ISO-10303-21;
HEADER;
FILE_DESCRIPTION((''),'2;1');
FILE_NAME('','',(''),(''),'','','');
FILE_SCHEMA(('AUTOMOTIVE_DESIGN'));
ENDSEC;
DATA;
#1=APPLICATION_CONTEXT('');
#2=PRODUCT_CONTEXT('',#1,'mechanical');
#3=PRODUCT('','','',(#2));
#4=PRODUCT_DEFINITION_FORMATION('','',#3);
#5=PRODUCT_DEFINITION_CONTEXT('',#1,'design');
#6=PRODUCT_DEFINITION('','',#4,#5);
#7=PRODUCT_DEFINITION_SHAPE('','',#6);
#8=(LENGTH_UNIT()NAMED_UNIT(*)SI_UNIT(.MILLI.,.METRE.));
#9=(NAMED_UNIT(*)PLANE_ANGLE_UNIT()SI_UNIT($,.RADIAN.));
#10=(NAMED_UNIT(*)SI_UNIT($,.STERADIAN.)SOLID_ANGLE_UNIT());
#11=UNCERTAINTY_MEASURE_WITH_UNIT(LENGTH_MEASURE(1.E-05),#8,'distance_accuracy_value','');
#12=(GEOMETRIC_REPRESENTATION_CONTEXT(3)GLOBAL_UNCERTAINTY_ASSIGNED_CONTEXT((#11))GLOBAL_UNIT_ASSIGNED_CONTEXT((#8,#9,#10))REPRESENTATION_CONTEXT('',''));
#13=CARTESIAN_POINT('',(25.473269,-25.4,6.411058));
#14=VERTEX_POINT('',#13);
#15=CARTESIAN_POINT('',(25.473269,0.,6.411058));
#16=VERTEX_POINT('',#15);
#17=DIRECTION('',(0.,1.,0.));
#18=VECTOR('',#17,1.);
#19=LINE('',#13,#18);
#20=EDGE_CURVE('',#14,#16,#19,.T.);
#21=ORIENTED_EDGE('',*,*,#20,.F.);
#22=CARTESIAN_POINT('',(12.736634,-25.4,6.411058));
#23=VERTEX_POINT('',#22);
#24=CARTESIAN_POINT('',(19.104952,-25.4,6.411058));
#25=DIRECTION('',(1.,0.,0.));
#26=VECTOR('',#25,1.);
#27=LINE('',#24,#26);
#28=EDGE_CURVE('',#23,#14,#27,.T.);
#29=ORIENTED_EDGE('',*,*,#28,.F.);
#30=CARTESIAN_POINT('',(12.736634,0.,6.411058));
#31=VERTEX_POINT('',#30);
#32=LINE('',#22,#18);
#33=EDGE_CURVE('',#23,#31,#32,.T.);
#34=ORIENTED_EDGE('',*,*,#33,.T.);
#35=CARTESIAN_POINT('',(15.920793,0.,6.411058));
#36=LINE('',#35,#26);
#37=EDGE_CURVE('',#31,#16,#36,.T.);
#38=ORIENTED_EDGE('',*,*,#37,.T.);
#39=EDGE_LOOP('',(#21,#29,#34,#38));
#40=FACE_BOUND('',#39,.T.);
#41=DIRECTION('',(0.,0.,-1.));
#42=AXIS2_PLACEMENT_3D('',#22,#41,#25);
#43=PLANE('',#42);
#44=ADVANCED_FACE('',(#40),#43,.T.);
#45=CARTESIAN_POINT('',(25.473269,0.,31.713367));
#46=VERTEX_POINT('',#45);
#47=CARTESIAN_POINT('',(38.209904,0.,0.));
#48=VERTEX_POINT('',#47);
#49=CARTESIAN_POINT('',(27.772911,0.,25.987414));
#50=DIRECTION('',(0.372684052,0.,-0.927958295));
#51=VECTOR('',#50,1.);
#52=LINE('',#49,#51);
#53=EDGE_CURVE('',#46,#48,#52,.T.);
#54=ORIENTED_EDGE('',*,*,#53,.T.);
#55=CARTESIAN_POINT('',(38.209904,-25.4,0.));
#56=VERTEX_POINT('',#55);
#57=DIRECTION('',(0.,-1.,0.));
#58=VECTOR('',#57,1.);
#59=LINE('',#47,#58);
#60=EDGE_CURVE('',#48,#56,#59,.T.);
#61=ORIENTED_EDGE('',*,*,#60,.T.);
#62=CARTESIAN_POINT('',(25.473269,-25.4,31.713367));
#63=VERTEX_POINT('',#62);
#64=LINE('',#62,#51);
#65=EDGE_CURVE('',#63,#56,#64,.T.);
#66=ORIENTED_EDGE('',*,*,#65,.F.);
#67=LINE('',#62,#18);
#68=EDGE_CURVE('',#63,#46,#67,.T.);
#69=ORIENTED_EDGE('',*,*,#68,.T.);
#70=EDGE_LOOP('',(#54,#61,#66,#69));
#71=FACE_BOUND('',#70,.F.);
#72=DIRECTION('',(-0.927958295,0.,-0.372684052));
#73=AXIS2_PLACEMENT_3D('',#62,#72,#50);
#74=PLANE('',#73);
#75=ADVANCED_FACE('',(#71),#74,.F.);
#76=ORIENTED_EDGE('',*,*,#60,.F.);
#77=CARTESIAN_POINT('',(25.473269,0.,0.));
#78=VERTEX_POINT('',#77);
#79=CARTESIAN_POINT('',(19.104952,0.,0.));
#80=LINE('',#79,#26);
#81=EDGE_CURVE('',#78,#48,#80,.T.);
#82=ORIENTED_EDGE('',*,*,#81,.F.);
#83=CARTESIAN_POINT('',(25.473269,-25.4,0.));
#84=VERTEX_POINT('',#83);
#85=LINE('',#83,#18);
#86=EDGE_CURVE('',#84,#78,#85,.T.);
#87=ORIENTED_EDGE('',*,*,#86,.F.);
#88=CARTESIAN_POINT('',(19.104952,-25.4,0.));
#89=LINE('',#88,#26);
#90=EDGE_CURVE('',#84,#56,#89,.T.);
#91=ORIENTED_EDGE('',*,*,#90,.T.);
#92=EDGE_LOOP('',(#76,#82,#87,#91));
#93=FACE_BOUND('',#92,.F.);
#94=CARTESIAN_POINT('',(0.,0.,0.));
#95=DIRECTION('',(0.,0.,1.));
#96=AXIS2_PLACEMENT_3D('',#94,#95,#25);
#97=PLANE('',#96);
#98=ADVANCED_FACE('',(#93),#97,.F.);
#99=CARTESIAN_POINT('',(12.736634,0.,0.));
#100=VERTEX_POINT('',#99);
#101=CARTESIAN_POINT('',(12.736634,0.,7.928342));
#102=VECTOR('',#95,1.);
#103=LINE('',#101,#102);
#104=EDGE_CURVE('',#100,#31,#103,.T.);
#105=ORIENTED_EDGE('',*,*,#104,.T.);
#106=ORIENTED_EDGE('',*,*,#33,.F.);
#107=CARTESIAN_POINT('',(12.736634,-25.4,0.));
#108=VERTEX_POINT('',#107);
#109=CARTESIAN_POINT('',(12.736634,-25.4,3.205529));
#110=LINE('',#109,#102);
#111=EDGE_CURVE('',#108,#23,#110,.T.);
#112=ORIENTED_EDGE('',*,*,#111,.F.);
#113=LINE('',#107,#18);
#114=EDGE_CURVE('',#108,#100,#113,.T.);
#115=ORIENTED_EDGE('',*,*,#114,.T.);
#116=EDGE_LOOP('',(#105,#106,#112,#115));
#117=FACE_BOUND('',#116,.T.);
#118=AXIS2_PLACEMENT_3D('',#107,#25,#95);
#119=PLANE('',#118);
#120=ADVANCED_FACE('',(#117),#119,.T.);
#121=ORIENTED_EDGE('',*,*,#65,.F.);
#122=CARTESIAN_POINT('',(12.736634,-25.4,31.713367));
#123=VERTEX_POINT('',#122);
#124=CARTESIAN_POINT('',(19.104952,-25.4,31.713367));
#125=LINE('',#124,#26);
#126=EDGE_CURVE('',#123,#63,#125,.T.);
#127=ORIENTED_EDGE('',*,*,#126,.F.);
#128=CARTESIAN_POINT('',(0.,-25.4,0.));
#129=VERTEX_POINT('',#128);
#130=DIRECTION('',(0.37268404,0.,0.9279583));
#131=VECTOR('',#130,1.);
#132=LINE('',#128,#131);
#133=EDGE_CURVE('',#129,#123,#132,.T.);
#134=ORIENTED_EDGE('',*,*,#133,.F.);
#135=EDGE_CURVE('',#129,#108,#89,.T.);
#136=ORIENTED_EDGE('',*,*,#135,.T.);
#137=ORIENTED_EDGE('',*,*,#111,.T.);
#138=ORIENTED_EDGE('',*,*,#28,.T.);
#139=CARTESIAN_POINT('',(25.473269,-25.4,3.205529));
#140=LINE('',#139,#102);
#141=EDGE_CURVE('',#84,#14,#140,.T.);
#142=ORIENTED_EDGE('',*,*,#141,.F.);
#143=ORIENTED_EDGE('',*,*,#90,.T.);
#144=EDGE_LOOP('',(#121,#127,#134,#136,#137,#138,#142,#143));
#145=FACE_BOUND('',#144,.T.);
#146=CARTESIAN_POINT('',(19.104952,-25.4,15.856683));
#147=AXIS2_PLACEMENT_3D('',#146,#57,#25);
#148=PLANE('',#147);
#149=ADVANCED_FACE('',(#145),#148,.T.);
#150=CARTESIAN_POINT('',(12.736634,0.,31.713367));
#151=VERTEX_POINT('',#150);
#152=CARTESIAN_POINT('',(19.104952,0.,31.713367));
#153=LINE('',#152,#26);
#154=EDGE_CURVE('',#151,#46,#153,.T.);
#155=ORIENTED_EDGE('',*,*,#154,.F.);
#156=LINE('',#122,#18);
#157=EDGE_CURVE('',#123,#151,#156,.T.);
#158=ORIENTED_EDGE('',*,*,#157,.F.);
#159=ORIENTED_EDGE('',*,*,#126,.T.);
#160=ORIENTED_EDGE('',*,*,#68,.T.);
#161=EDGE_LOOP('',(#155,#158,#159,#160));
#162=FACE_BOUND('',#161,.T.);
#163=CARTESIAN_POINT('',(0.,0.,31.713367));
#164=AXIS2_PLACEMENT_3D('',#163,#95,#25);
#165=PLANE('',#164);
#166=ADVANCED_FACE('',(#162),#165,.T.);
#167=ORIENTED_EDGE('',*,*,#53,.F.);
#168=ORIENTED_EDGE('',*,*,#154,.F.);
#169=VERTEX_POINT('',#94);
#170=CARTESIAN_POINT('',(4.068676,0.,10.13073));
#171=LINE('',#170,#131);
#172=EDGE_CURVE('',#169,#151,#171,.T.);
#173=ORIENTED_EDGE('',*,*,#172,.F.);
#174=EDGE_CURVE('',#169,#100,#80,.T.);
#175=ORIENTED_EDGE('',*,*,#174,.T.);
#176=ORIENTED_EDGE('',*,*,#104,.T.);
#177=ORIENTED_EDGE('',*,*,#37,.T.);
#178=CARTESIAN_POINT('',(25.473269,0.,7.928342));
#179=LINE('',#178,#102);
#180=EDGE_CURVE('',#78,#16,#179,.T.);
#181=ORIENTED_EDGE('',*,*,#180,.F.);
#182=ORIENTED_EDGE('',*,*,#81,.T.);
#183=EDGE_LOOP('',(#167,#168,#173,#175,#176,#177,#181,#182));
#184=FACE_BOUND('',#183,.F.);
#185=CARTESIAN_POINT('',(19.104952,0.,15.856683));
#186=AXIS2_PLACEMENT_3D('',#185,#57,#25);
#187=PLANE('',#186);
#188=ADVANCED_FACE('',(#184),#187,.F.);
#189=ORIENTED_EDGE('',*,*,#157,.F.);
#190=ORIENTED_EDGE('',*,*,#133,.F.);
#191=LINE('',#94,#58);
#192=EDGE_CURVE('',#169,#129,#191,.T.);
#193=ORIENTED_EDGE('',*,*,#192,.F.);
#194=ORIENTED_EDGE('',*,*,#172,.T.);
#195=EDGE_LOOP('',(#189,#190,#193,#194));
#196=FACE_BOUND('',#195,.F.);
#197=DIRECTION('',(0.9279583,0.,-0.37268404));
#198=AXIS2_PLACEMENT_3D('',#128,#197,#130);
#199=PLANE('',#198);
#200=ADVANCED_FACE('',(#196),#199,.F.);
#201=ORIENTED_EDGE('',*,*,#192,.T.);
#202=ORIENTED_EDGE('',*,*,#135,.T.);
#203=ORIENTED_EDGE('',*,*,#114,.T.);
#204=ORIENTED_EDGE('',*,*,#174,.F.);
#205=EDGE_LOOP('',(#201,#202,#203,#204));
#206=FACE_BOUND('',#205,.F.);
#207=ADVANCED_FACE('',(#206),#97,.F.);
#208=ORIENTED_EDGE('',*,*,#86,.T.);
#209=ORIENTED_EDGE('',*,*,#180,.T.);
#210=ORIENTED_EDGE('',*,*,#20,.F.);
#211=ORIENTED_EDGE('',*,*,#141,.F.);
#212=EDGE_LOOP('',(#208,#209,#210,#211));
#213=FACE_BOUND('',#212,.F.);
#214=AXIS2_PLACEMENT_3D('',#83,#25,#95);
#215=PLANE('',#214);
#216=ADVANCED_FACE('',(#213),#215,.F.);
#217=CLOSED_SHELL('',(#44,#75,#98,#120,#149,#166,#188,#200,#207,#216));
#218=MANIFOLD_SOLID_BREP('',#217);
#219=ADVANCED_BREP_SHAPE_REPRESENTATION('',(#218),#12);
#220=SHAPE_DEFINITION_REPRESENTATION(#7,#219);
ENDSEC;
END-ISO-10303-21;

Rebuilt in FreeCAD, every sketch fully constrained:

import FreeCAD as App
import Part
import Sketcher

V = App.Vector
Q = App.Units.Quantity

doc = App.newDocument("Part")
body = doc.addObject("PartDesign::Body", "Body")

# Sketch on XZ plane
sketch1 = doc.addObject("Sketcher::SketchObject", "Sketch")
body.addObject(sketch1)
sketch1.AttachmentSupport = (doc.XZ_Plane, [""])
sketch1.MapMode = "FlatFace"
sketch1.addGeometry([
    Part.LineSegment(V(0, 31.713367, 0), V(0, 0, 0)),
    Part.LineSegment(V(0, 0, 0), V(38.209904, 0, 0)),
    Part.LineSegment(V(38.209904, 0, 0), V(38.209904, 31.713367, 0)),
    Part.LineSegment(V(38.209904, 31.713367, 0), V(0, 31.713367, 0)),
], False)
sketch1.addConstraint([
    Sketcher.Constraint("Coincident", 0, 2, 1, 1),
    Sketcher.Constraint("Coincident", 1, 2, 2, 1),
    Sketcher.Constraint("Coincident", 2, 2, 3, 1),
    Sketcher.Constraint("Coincident", 3, 2, 0, 1),
    Sketcher.Constraint("Vertical", 0),
    Sketcher.Constraint("Horizontal", 1),
    Sketcher.Constraint("Vertical", 2),
    Sketcher.Constraint("Horizontal", 3),
    Sketcher.Constraint("Coincident", 0, 2, -1, 1),
    Sketcher.Constraint("DistanceX", 1, 1, 1, 2, 38.209904),
    Sketcher.Constraint("DistanceY", 0, 2, 0, 1, 31.713367),
])
pad1 = doc.addObject("PartDesign::Pad", "Pad")
body.addObject(pad1)
pad1.Profile = sketch1
pad1.Length = Q("1 in")

# Sketch on XZ plane
sketch2 = doc.addObject("Sketcher::SketchObject", "Sketch001")
body.addObject(sketch2)
sketch2.AttachmentSupport = (doc.XZ_Plane, [""])
sketch2.MapMode = "FlatFace"
sketch2.AttachmentOffset = App.Placement(V(0, 0, 1 * 25.4), App.Rotation())
sketch2.addGeometry([
    Part.LineSegment(V(0, 0, 0), V(12.736634, 31.713367, 0)),
    Part.LineSegment(V(12.736634, 31.713367, 0), V(0, 31.713367, 0)),
    Part.LineSegment(V(0, 31.713367, 0), V(0, 0, 0)),
], False)
sketch2.addConstraint([
    Sketcher.Constraint("Coincident", 0, 2, 1, 1),
    Sketcher.Constraint("Coincident", 1, 2, 2, 1),
    Sketcher.Constraint("Coincident", 2, 2, 0, 1),
    Sketcher.Constraint("Horizontal", 1),
    Sketcher.Constraint("Vertical", 2),
    Sketcher.Constraint("Coincident", 2, 2, -1, 1),
    Sketcher.Constraint("DistanceX", 1, 2, 1, 1, 12.736634),
    Sketcher.Constraint("DistanceY", 2, 2, 2, 1, 31.713367),
])
pocket1 = doc.addObject("PartDesign::Pocket", "Pocket")
body.addObject(pocket1)
pocket1.Profile = sketch2
pocket1.Type = "ThroughAll"

# Sketch on XZ plane
sketch3 = doc.addObject("Sketcher::SketchObject", "Sketch002")
body.addObject(sketch3)
sketch3.AttachmentSupport = (doc.XZ_Plane, [""])
sketch3.MapMode = "FlatFace"
sketch3.AttachmentOffset = App.Placement(V(0, 0, 1 * 25.4), App.Rotation())
sketch3.addGeometry([
    Part.LineSegment(V(38.209904, 31.713367, 0), V(25.473269, 31.713367, 0)),
    Part.LineSegment(V(25.473269, 31.713367, 0), V(38.209904, 0, 0)),
    Part.LineSegment(V(38.209904, 0, 0), V(38.209904, 31.713367, 0)),
], False)
sketch3.addConstraint([
    Sketcher.Constraint("Coincident", 0, 2, 1, 1),
    Sketcher.Constraint("Coincident", 1, 2, 2, 1),
    Sketcher.Constraint("Coincident", 2, 2, 0, 1),
    Sketcher.Constraint("Horizontal", 0),
    Sketcher.Constraint("Vertical", 2),
    Sketcher.Constraint("PointOnObject", 1, 2, -1),
    Sketcher.Constraint("DistanceX", 0, 2, 0, 1, 12.736635),
    Sketcher.Constraint("DistanceY", 2, 1, 2, 2, 31.713367),
    Sketcher.Constraint("DistanceX", -1, 1, 0, 2, 25.473269),
])
pocket2 = doc.addObject("PartDesign::Pocket", "Pocket001")
body.addObject(pocket2)
pocket2.Profile = sketch3
pocket2.Type = "ThroughAll"

# Sketch on XZ plane
sketch4 = doc.addObject("Sketcher::SketchObject", "Sketch003")
body.addObject(sketch4)
sketch4.AttachmentSupport = (doc.XZ_Plane, [""])
sketch4.MapMode = "FlatFace"
sketch4.AttachmentOffset = App.Placement(V(0, 0, 1 * 25.4), App.Rotation())
sketch4.addGeometry([
    Part.LineSegment(V(12.736634, 6.411058, 0), V(12.736634, 0, 0)),
    Part.LineSegment(V(12.736634, 0, 0), V(25.473269, 0, 0)),
    Part.LineSegment(V(25.473269, 0, 0), V(25.473269, 6.411058, 0)),
    Part.LineSegment(V(25.473269, 6.411058, 0), V(12.736634, 6.411058, 0)),
], False)
sketch4.addConstraint([
    Sketcher.Constraint("Coincident", 0, 2, 1, 1),
    Sketcher.Constraint("Coincident", 1, 2, 2, 1),
    Sketcher.Constraint("Coincident", 2, 2, 3, 1),
    Sketcher.Constraint("Coincident", 3, 2, 0, 1),
    Sketcher.Constraint("Vertical", 0),
    Sketcher.Constraint("Horizontal", 1),
    Sketcher.Constraint("Vertical", 2),
    Sketcher.Constraint("Horizontal", 3),
    Sketcher.Constraint("PointOnObject", 0, 2, -1),
    Sketcher.Constraint("DistanceX", 1, 1, 1, 2, 12.736635),
    Sketcher.Constraint("DistanceY", 0, 2, 0, 1, 6.411058),
    Sketcher.Constraint("DistanceX", -1, 1, 1, 2, 25.473269),
])
pocket3 = doc.addObject("PartDesign::Pocket", "Pocket002")
body.addObject(pocket3)
pocket3.Profile = sketch4
pocket3.Type = "ThroughAll"

doc.recompute()
